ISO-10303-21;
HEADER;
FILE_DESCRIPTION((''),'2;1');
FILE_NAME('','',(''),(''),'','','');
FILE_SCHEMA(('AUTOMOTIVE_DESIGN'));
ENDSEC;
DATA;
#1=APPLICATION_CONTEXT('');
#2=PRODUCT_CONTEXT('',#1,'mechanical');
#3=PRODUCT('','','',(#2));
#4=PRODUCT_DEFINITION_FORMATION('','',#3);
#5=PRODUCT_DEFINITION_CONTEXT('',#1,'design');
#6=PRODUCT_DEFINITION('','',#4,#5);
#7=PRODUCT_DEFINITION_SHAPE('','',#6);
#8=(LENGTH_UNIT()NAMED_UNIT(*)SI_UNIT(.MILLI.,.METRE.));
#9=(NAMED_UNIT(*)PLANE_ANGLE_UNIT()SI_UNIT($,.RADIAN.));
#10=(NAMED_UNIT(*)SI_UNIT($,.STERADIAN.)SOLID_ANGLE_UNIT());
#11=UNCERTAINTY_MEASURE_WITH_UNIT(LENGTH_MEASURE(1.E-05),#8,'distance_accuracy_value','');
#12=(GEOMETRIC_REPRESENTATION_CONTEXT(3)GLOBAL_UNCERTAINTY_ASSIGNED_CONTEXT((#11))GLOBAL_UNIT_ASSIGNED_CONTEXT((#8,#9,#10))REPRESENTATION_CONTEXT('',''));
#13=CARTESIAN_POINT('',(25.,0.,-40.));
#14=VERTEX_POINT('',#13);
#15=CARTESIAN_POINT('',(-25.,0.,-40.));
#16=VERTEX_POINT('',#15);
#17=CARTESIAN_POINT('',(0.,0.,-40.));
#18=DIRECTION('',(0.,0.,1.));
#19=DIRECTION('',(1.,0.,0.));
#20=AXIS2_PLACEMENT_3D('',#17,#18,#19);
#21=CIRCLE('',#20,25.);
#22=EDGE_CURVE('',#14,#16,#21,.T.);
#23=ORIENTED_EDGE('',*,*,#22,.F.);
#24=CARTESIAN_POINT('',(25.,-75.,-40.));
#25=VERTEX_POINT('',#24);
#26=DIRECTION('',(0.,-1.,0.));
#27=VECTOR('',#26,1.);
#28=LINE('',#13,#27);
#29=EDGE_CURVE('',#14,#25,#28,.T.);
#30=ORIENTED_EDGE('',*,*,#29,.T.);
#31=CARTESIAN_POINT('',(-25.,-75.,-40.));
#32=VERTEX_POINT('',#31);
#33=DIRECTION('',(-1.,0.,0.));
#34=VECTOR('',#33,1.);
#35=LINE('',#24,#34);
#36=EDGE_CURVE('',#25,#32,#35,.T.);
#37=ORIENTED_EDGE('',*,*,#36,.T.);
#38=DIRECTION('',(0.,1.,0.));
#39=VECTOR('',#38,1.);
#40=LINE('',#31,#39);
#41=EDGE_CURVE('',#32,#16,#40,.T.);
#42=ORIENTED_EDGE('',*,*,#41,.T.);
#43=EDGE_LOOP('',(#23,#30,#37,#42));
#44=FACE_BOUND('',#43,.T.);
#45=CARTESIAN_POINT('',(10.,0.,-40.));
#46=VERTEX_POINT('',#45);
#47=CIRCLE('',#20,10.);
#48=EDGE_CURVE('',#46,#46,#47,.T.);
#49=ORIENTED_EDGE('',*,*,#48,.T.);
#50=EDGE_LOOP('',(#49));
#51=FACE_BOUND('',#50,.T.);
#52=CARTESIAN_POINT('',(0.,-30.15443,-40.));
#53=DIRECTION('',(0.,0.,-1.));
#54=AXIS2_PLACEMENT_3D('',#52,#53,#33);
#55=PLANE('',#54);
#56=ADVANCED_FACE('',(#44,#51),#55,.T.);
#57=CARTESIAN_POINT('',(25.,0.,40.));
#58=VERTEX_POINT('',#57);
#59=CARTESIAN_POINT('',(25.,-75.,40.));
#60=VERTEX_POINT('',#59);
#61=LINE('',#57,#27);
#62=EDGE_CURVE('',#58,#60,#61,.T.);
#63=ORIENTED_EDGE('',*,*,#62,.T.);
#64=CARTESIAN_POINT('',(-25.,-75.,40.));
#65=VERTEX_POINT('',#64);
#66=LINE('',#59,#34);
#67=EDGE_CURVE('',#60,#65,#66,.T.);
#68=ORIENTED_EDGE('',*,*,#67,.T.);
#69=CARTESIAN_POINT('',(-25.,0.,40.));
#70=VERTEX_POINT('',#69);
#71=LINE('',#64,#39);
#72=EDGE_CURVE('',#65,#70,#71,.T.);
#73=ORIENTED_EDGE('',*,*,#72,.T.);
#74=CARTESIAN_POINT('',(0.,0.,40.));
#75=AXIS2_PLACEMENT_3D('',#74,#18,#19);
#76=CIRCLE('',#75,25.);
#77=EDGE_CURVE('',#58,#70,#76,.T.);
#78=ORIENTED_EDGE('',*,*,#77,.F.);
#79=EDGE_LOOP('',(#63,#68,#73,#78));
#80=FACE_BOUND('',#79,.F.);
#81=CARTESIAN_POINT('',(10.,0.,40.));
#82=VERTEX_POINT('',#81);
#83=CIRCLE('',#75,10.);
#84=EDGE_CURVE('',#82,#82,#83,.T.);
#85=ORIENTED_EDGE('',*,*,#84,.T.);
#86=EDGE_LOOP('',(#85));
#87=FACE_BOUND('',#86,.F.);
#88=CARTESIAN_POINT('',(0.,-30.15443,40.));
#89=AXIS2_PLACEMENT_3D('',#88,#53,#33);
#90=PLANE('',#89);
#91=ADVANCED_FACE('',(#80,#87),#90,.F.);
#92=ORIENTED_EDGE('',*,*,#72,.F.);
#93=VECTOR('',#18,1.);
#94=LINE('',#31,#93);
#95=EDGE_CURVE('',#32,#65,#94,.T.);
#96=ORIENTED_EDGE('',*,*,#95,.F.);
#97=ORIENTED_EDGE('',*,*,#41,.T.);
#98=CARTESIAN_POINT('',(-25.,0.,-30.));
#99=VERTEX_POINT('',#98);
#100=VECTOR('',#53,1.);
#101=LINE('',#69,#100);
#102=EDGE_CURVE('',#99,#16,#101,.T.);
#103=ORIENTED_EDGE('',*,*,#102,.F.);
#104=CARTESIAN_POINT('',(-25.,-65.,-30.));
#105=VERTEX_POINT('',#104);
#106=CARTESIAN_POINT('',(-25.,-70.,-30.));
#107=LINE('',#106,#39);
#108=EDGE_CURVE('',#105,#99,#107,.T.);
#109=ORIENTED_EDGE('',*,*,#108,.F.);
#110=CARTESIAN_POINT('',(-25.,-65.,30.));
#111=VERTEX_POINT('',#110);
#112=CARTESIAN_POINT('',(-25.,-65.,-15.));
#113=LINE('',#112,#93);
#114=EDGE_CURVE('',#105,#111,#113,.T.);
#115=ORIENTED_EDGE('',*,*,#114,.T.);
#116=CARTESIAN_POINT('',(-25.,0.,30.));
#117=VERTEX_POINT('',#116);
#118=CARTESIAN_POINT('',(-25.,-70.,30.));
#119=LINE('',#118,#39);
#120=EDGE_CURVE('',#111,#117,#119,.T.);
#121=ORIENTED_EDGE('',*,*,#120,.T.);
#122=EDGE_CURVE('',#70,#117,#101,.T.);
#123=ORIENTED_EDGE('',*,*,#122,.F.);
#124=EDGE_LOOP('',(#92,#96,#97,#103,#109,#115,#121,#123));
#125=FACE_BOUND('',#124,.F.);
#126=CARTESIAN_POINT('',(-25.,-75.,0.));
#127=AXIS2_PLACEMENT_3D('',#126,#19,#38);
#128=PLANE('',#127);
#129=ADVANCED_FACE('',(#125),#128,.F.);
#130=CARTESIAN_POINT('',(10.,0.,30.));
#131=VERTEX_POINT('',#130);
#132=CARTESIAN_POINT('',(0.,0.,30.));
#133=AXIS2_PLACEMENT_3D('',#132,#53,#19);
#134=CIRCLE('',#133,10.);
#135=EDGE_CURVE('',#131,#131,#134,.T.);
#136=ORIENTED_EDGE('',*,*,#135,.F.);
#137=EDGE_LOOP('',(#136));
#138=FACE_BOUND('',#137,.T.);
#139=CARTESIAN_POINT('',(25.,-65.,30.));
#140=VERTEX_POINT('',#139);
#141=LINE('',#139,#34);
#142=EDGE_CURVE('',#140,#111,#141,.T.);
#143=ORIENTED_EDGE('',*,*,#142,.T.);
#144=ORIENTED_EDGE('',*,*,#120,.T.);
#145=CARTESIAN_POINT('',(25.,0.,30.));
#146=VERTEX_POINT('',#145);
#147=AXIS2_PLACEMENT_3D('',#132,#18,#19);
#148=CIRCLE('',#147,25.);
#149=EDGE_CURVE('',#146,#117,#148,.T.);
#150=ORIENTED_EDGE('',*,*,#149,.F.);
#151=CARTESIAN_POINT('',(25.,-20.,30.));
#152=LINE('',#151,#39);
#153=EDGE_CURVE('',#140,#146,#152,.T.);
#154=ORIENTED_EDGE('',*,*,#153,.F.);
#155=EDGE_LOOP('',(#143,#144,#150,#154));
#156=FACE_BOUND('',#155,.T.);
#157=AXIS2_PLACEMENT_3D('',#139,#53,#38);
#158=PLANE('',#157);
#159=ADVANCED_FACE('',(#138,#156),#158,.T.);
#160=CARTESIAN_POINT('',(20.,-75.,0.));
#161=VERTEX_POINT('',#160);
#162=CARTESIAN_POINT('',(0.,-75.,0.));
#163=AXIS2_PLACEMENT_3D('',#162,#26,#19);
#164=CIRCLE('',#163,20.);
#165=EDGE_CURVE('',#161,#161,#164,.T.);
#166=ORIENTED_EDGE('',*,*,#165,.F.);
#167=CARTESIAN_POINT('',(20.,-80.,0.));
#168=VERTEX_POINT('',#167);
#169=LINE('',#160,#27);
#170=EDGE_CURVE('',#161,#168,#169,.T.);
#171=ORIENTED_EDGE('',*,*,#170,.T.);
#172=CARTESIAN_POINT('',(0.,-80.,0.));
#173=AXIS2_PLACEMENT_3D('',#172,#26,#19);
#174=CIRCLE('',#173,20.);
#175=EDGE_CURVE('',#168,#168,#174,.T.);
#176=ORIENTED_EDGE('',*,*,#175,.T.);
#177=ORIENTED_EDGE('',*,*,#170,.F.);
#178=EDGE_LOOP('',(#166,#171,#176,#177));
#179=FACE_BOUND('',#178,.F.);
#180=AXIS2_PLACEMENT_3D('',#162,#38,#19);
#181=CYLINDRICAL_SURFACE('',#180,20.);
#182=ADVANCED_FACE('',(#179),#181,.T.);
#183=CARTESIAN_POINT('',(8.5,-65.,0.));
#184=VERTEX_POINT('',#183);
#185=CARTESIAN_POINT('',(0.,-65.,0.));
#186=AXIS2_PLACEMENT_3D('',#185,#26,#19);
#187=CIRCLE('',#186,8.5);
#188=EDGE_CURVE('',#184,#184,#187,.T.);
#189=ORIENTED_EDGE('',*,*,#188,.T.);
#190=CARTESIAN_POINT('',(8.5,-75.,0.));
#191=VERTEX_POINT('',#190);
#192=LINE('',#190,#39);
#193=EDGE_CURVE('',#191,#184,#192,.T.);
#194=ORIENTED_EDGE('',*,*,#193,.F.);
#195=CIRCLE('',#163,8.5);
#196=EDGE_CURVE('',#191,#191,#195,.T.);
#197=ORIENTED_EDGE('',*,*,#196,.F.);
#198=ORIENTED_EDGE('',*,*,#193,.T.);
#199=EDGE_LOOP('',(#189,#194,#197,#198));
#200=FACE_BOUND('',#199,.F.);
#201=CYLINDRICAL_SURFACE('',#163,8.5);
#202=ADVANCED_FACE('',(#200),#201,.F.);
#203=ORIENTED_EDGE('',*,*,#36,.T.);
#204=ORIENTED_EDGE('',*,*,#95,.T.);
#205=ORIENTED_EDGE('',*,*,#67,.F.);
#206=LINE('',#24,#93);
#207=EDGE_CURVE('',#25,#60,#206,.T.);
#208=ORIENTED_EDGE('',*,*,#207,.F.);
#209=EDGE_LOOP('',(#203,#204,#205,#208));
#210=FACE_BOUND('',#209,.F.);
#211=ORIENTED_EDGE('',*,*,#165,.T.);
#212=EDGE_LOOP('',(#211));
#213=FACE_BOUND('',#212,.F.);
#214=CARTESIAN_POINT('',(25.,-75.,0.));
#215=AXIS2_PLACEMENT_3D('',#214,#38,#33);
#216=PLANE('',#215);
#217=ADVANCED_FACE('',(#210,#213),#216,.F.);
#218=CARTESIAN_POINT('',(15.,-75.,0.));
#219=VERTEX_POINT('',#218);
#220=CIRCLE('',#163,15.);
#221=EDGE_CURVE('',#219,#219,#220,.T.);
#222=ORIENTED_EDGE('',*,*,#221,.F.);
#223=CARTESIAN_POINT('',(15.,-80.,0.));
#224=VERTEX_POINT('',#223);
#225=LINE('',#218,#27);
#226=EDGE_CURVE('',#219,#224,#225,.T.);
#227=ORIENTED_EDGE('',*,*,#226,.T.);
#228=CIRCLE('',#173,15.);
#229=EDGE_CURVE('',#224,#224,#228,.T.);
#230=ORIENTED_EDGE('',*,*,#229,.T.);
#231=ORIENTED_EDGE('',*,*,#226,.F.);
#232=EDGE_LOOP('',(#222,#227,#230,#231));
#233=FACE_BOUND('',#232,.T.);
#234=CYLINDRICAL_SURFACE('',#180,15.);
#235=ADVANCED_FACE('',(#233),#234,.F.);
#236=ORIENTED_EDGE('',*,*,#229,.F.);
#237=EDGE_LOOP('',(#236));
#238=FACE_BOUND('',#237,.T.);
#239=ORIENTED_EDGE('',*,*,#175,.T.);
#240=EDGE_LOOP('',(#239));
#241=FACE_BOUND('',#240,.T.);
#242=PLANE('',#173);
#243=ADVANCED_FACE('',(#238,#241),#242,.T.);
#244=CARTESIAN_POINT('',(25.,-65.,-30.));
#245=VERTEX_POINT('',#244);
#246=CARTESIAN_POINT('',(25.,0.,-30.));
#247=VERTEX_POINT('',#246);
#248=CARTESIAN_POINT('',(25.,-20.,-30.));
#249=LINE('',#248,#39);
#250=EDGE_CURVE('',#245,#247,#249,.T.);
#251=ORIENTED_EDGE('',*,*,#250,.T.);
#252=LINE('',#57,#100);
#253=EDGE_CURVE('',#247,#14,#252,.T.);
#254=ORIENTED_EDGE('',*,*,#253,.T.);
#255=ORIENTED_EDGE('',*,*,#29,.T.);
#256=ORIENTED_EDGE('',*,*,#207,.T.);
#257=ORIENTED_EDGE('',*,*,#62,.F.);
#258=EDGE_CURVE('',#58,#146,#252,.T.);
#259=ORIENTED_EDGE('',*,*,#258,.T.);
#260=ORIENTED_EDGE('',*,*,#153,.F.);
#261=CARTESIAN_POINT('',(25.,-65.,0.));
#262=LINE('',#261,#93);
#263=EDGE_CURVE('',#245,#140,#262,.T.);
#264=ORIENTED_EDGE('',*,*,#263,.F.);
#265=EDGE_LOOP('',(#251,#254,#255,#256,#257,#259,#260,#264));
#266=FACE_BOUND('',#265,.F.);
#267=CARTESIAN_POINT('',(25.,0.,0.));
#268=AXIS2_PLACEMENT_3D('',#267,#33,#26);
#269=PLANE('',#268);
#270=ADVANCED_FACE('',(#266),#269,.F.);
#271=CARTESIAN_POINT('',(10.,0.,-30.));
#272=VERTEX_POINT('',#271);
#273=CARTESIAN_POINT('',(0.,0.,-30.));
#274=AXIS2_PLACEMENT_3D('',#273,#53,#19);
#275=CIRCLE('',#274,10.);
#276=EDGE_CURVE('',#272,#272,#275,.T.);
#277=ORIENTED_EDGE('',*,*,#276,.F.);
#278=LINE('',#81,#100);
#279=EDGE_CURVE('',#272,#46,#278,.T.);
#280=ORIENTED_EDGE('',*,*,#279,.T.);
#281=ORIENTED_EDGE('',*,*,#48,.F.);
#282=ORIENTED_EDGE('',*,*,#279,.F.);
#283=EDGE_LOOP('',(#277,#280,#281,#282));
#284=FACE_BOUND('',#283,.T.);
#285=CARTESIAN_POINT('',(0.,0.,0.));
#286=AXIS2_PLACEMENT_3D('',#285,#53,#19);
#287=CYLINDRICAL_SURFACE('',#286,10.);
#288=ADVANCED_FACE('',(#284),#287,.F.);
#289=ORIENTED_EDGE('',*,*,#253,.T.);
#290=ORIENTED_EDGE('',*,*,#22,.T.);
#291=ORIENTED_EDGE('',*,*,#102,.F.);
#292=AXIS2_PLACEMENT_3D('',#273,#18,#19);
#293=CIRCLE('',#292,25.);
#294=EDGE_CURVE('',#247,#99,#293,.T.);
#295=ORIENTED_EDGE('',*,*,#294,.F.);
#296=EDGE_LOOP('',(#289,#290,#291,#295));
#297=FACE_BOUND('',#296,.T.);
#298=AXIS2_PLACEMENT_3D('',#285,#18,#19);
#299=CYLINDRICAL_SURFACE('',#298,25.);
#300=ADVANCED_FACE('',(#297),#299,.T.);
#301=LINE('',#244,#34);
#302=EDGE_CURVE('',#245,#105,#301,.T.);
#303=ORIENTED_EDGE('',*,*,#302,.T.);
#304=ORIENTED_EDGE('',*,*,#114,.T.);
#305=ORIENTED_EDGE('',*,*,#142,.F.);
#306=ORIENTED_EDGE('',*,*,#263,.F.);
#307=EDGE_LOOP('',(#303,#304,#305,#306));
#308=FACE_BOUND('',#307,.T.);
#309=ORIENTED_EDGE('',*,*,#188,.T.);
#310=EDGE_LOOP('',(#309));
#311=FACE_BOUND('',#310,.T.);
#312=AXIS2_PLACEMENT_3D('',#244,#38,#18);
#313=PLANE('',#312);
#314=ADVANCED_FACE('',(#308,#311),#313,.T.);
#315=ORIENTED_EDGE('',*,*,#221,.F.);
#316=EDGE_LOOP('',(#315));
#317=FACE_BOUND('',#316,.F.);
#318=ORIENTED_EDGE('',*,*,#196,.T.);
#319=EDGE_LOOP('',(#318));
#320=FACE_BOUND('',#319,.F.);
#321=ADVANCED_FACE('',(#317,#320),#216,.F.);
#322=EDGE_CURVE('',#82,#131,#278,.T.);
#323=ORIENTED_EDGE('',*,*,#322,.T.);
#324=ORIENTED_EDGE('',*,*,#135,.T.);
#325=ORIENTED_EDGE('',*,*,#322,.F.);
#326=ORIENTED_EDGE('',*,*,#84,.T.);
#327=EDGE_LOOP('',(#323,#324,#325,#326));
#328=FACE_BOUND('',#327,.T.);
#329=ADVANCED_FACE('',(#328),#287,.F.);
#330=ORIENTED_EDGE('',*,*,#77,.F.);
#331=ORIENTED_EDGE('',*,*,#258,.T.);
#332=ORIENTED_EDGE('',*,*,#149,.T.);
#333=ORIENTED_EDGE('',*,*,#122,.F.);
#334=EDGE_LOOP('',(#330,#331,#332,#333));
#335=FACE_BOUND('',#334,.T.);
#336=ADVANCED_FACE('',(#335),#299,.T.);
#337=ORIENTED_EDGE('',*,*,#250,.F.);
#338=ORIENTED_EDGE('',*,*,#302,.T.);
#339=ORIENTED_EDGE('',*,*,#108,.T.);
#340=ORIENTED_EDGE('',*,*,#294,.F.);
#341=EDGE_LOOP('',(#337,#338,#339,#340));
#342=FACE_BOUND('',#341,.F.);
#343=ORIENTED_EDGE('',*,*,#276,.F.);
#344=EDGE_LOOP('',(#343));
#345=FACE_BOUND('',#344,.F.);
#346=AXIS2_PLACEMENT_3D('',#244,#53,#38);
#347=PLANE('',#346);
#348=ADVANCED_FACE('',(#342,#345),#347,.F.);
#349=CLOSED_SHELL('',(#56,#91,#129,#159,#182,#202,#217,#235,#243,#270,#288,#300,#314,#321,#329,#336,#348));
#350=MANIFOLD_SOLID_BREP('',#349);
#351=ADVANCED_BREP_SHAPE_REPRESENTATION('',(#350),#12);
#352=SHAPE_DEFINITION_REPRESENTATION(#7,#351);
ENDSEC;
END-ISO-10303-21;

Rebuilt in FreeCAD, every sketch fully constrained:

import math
import FreeCAD as App
import Part
import Sketcher

V = App.Vector

doc = App.newDocument("Part")
params = doc.addObject("Spreadsheet::Sheet", "Params")
for row, (alias, value) in enumerate([
    ("sketch1_diameter", "20 mm"),
    ("sketch1_radius", "25 mm"),
    ("sketch1_height", "75 mm"),
    ("pad1_length", "80 mm"),
    ("sketch2_width", "90 mm"),
    ("sketch2_height", "60 mm"),
    ("sketch3_diameter", "40 mm"),
    ("sketch3_diameter2", "30 mm"),
    ("pad2_length", "5 mm"),
    ("sketch4_diameter", "17 mm"),
], start=1):
    params.set(f"A{row}", alias)
    params.set(f"B{row}", "=" + value)
    params.setAlias(f"B{row}", alias)

body = doc.addObject("PartDesign::Body", "Body")

# Sketch on XY plane
sketch1 = doc.addObject("Sketcher::SketchObject", "Sketch")
body.addObject(sketch1)
sketch1.AttachmentSupport = (doc.XY_Plane, [""])
sketch1.MapMode = "FlatFace"
sketch1.addGeometry(Part.LineSegment(V(-25, 0, 0), V(-25, -75, 0)), False)
sketch1.addGeometry(Part.LineSegment(V(-25, -75, 0), V(25, -75, 0)), False)
sketch1.addGeometry(Part.LineSegment(V(25, -75, 0), V(25, 0, 0)), False)
sketch1.addGeometry(Part.ArcOfCircle(Part.Circle(V(0, 0, 0), V(0, 0, 1), 25), math.radians(0), math.radians(180)), False)
sketch1.addGeometry(Part.Circle(V(0, 0, 0), V(0, 0, 1), 10), False)
sketch1.addConstraint(Sketcher.Constraint("Coincident", 0, 2, 1, 1))
sketch1.addConstraint(Sketcher.Constraint("Coincident", 1, 2, 2, 1))
sketch1.addConstraint(Sketcher.Constraint("Tangent", 2, 2, 3, 1))
sketch1.addConstraint(Sketcher.Constraint("Tangent", 3, 2, 0, 1))
sketch1.addConstraint(Sketcher.Constraint("Vertical", 0))
sketch1.addConstraint(Sketcher.Constraint("Horizontal", 1))
sketch1.addConstraint(Sketcher.Constraint("Vertical", 2))
sketch1.addConstraint(Sketcher.Constraint("Coincident", 3, 3, -1, 1))
sketch1.addConstraint(Sketcher.Constraint("Coincident", 4, 3, -1, 1))
sketch1.addConstraint(Sketcher.Constraint("Diameter", 4, 20.0))
sketch1.addConstraint(Sketcher.Constraint("Radius", 3, 25.0))
sketch1.addConstraint(Sketcher.Constraint("DistanceY", 0, 2, 0, 1, 75.0))
sketch1.setExpression("Constraints[9]", "Params.sketch1_diameter")
sketch1.setExpression("Constraints[10]", "Params.sketch1_radius")
sketch1.setExpression("Constraints[11]", "Params.sketch1_height")
pad1 = doc.addObject("PartDesign::Pad", "Pad")
body.addObject(pad1)
pad1.Profile = sketch1
pad1.setExpression("Length", "Params.pad1_length")
pad1.Midplane = True

# Sketch on YZ plane
sketch2 = doc.addObject("Sketcher::SketchObject", "Sketch001")
body.addObject(sketch2)
sketch2.AttachmentSupport = (doc.YZ_Plane, [""])
sketch2.MapMode = "FlatFace"
sketch2.AttachmentOffset = App.Placement(V(0, 0, 25), App.Rotation())
sketch2.addGeometry(Part.LineSegment(V(-65, 30, 0), V(-65, -30, 0)), False)
sketch2.addGeometry(Part.LineSegment(V(-65, -30, 0), V(25, -30, 0)), False)
sketch2.addGeometry(Part.LineSegment(V(25, -30, 0), V(25, 30, 0)), False)
sketch2.addGeometry(Part.LineSegment(V(25, 30, 0), V(-65, 30, 0)), False)
sketch2.addConstraint(Sketcher.Constraint("Coincident", 0, 2, 1, 1))
sketch2.addConstraint(Sketcher.Constraint("Coincident", 1, 2, 2, 1))
sketch2.addConstraint(Sketcher.Constraint("Coincident", 2, 2, 3, 1))
sketch2.addConstraint(Sketcher.Constraint("Coincident", 3, 2, 0, 1))
sketch2.addConstraint(Sketcher.Constraint("Vertical", 0))
sketch2.addConstraint(Sketcher.Constraint("Horizontal", 1))
sketch2.addConstraint(Sketcher.Constraint("Vertical", 2))
sketch2.addConstraint(Sketcher.Constraint("Horizontal", 3))
sketch2.addConstraint(Sketcher.Constraint("DistanceX", 1, 1, 1, 2, 90.0))
sketch2.addConstraint(Sketcher.Constraint("DistanceY", 0, 2, 0, 1, 60.0))
sketch2.addConstraint(Sketcher.Constraint("DistanceX", 0, 2, -1, 1, 65.0))
sketch2.addConstraint(Sketcher.Constraint("DistanceY", 0, 2, -1, 1, 30.0))
sketch2.setExpression("Constraints[8]", "Params.sketch2_width")
sketch2.setExpression("Constraints[9]", "Params.sketch2_height")
pocket1 = doc.addObject("PartDesign::Pocket", "Pocket")
body.addObject(pocket1)
pocket1.Profile = sketch2
pocket1.Type = "ThroughAll"

# Sketch on XZ plane
sketch3 = doc.addObject("Sketcher::SketchObject", "Sketch002")
body.addObject(sketch3)
sketch3.AttachmentSupport = (doc.XZ_Plane, [""])
sketch3.MapMode = "FlatFace"
sketch3.AttachmentOffset = App.Placement(V(0, 0, 75), App.Rotation())
sketch3.addGeometry(Part.Circle(V(0, 0, 0), V(0, 0, 1), 20), False)
sketch3.addGeometry(Part.Circle(V(0, 0, 0), V(0, 0, 1), 15), False)
sketch3.addConstraint(Sketcher.Constraint("Coincident", 0, 3, -1, 1))
sketch3.addConstraint(Sketcher.Constraint("Coincident", 1, 3, -1, 1))
sketch3.addConstraint(Sketcher.Constraint("Diameter", 0, 40.0))
sketch3.addConstraint(Sketcher.Constraint("Diameter", 1, 30.0))
sketch3.setExpression("Constraints[2]", "Params.sketch3_diameter")
sketch3.setExpression("Constraints[3]", "Params.sketch3_diameter2")
pad2 = doc.addObject("PartDesign::Pad", "Pad001")
body.addObject(pad2)
pad2.Profile = sketch3
pad2.setExpression("Length", "Params.pad2_length")

# Sketch on XZ plane
sketch4 = doc.addObject("Sketcher::SketchObject", "Sketch003")
body.addObject(sketch4)
sketch4.AttachmentSupport = (doc.XZ_Plane, [""])
sketch4.MapMode = "FlatFace"
sketch4.AttachmentOffset = App.Placement(V(0, 0, 75), App.Rotation())
sketch4.addGeometry(Part.Circle(V(0, 0, 0), V(0, 0, 1), 8), False)
sketch4.addConstraint(Sketcher.Constraint("Coincident", 0, 3, -1, 1))
sketch4.addConstraint(Sketcher.Constraint("Diameter", 0, 17.0))
sketch4.setExpression("Constraints[1]", "Params.sketch4_diameter")
pocket2 = doc.addObject("PartDesign::Pocket", "Pocket001")
body.addObject(pocket2)
pocket2.Profile = sketch4
pocket2.Type = "ThroughAll"

doc.recompute()
